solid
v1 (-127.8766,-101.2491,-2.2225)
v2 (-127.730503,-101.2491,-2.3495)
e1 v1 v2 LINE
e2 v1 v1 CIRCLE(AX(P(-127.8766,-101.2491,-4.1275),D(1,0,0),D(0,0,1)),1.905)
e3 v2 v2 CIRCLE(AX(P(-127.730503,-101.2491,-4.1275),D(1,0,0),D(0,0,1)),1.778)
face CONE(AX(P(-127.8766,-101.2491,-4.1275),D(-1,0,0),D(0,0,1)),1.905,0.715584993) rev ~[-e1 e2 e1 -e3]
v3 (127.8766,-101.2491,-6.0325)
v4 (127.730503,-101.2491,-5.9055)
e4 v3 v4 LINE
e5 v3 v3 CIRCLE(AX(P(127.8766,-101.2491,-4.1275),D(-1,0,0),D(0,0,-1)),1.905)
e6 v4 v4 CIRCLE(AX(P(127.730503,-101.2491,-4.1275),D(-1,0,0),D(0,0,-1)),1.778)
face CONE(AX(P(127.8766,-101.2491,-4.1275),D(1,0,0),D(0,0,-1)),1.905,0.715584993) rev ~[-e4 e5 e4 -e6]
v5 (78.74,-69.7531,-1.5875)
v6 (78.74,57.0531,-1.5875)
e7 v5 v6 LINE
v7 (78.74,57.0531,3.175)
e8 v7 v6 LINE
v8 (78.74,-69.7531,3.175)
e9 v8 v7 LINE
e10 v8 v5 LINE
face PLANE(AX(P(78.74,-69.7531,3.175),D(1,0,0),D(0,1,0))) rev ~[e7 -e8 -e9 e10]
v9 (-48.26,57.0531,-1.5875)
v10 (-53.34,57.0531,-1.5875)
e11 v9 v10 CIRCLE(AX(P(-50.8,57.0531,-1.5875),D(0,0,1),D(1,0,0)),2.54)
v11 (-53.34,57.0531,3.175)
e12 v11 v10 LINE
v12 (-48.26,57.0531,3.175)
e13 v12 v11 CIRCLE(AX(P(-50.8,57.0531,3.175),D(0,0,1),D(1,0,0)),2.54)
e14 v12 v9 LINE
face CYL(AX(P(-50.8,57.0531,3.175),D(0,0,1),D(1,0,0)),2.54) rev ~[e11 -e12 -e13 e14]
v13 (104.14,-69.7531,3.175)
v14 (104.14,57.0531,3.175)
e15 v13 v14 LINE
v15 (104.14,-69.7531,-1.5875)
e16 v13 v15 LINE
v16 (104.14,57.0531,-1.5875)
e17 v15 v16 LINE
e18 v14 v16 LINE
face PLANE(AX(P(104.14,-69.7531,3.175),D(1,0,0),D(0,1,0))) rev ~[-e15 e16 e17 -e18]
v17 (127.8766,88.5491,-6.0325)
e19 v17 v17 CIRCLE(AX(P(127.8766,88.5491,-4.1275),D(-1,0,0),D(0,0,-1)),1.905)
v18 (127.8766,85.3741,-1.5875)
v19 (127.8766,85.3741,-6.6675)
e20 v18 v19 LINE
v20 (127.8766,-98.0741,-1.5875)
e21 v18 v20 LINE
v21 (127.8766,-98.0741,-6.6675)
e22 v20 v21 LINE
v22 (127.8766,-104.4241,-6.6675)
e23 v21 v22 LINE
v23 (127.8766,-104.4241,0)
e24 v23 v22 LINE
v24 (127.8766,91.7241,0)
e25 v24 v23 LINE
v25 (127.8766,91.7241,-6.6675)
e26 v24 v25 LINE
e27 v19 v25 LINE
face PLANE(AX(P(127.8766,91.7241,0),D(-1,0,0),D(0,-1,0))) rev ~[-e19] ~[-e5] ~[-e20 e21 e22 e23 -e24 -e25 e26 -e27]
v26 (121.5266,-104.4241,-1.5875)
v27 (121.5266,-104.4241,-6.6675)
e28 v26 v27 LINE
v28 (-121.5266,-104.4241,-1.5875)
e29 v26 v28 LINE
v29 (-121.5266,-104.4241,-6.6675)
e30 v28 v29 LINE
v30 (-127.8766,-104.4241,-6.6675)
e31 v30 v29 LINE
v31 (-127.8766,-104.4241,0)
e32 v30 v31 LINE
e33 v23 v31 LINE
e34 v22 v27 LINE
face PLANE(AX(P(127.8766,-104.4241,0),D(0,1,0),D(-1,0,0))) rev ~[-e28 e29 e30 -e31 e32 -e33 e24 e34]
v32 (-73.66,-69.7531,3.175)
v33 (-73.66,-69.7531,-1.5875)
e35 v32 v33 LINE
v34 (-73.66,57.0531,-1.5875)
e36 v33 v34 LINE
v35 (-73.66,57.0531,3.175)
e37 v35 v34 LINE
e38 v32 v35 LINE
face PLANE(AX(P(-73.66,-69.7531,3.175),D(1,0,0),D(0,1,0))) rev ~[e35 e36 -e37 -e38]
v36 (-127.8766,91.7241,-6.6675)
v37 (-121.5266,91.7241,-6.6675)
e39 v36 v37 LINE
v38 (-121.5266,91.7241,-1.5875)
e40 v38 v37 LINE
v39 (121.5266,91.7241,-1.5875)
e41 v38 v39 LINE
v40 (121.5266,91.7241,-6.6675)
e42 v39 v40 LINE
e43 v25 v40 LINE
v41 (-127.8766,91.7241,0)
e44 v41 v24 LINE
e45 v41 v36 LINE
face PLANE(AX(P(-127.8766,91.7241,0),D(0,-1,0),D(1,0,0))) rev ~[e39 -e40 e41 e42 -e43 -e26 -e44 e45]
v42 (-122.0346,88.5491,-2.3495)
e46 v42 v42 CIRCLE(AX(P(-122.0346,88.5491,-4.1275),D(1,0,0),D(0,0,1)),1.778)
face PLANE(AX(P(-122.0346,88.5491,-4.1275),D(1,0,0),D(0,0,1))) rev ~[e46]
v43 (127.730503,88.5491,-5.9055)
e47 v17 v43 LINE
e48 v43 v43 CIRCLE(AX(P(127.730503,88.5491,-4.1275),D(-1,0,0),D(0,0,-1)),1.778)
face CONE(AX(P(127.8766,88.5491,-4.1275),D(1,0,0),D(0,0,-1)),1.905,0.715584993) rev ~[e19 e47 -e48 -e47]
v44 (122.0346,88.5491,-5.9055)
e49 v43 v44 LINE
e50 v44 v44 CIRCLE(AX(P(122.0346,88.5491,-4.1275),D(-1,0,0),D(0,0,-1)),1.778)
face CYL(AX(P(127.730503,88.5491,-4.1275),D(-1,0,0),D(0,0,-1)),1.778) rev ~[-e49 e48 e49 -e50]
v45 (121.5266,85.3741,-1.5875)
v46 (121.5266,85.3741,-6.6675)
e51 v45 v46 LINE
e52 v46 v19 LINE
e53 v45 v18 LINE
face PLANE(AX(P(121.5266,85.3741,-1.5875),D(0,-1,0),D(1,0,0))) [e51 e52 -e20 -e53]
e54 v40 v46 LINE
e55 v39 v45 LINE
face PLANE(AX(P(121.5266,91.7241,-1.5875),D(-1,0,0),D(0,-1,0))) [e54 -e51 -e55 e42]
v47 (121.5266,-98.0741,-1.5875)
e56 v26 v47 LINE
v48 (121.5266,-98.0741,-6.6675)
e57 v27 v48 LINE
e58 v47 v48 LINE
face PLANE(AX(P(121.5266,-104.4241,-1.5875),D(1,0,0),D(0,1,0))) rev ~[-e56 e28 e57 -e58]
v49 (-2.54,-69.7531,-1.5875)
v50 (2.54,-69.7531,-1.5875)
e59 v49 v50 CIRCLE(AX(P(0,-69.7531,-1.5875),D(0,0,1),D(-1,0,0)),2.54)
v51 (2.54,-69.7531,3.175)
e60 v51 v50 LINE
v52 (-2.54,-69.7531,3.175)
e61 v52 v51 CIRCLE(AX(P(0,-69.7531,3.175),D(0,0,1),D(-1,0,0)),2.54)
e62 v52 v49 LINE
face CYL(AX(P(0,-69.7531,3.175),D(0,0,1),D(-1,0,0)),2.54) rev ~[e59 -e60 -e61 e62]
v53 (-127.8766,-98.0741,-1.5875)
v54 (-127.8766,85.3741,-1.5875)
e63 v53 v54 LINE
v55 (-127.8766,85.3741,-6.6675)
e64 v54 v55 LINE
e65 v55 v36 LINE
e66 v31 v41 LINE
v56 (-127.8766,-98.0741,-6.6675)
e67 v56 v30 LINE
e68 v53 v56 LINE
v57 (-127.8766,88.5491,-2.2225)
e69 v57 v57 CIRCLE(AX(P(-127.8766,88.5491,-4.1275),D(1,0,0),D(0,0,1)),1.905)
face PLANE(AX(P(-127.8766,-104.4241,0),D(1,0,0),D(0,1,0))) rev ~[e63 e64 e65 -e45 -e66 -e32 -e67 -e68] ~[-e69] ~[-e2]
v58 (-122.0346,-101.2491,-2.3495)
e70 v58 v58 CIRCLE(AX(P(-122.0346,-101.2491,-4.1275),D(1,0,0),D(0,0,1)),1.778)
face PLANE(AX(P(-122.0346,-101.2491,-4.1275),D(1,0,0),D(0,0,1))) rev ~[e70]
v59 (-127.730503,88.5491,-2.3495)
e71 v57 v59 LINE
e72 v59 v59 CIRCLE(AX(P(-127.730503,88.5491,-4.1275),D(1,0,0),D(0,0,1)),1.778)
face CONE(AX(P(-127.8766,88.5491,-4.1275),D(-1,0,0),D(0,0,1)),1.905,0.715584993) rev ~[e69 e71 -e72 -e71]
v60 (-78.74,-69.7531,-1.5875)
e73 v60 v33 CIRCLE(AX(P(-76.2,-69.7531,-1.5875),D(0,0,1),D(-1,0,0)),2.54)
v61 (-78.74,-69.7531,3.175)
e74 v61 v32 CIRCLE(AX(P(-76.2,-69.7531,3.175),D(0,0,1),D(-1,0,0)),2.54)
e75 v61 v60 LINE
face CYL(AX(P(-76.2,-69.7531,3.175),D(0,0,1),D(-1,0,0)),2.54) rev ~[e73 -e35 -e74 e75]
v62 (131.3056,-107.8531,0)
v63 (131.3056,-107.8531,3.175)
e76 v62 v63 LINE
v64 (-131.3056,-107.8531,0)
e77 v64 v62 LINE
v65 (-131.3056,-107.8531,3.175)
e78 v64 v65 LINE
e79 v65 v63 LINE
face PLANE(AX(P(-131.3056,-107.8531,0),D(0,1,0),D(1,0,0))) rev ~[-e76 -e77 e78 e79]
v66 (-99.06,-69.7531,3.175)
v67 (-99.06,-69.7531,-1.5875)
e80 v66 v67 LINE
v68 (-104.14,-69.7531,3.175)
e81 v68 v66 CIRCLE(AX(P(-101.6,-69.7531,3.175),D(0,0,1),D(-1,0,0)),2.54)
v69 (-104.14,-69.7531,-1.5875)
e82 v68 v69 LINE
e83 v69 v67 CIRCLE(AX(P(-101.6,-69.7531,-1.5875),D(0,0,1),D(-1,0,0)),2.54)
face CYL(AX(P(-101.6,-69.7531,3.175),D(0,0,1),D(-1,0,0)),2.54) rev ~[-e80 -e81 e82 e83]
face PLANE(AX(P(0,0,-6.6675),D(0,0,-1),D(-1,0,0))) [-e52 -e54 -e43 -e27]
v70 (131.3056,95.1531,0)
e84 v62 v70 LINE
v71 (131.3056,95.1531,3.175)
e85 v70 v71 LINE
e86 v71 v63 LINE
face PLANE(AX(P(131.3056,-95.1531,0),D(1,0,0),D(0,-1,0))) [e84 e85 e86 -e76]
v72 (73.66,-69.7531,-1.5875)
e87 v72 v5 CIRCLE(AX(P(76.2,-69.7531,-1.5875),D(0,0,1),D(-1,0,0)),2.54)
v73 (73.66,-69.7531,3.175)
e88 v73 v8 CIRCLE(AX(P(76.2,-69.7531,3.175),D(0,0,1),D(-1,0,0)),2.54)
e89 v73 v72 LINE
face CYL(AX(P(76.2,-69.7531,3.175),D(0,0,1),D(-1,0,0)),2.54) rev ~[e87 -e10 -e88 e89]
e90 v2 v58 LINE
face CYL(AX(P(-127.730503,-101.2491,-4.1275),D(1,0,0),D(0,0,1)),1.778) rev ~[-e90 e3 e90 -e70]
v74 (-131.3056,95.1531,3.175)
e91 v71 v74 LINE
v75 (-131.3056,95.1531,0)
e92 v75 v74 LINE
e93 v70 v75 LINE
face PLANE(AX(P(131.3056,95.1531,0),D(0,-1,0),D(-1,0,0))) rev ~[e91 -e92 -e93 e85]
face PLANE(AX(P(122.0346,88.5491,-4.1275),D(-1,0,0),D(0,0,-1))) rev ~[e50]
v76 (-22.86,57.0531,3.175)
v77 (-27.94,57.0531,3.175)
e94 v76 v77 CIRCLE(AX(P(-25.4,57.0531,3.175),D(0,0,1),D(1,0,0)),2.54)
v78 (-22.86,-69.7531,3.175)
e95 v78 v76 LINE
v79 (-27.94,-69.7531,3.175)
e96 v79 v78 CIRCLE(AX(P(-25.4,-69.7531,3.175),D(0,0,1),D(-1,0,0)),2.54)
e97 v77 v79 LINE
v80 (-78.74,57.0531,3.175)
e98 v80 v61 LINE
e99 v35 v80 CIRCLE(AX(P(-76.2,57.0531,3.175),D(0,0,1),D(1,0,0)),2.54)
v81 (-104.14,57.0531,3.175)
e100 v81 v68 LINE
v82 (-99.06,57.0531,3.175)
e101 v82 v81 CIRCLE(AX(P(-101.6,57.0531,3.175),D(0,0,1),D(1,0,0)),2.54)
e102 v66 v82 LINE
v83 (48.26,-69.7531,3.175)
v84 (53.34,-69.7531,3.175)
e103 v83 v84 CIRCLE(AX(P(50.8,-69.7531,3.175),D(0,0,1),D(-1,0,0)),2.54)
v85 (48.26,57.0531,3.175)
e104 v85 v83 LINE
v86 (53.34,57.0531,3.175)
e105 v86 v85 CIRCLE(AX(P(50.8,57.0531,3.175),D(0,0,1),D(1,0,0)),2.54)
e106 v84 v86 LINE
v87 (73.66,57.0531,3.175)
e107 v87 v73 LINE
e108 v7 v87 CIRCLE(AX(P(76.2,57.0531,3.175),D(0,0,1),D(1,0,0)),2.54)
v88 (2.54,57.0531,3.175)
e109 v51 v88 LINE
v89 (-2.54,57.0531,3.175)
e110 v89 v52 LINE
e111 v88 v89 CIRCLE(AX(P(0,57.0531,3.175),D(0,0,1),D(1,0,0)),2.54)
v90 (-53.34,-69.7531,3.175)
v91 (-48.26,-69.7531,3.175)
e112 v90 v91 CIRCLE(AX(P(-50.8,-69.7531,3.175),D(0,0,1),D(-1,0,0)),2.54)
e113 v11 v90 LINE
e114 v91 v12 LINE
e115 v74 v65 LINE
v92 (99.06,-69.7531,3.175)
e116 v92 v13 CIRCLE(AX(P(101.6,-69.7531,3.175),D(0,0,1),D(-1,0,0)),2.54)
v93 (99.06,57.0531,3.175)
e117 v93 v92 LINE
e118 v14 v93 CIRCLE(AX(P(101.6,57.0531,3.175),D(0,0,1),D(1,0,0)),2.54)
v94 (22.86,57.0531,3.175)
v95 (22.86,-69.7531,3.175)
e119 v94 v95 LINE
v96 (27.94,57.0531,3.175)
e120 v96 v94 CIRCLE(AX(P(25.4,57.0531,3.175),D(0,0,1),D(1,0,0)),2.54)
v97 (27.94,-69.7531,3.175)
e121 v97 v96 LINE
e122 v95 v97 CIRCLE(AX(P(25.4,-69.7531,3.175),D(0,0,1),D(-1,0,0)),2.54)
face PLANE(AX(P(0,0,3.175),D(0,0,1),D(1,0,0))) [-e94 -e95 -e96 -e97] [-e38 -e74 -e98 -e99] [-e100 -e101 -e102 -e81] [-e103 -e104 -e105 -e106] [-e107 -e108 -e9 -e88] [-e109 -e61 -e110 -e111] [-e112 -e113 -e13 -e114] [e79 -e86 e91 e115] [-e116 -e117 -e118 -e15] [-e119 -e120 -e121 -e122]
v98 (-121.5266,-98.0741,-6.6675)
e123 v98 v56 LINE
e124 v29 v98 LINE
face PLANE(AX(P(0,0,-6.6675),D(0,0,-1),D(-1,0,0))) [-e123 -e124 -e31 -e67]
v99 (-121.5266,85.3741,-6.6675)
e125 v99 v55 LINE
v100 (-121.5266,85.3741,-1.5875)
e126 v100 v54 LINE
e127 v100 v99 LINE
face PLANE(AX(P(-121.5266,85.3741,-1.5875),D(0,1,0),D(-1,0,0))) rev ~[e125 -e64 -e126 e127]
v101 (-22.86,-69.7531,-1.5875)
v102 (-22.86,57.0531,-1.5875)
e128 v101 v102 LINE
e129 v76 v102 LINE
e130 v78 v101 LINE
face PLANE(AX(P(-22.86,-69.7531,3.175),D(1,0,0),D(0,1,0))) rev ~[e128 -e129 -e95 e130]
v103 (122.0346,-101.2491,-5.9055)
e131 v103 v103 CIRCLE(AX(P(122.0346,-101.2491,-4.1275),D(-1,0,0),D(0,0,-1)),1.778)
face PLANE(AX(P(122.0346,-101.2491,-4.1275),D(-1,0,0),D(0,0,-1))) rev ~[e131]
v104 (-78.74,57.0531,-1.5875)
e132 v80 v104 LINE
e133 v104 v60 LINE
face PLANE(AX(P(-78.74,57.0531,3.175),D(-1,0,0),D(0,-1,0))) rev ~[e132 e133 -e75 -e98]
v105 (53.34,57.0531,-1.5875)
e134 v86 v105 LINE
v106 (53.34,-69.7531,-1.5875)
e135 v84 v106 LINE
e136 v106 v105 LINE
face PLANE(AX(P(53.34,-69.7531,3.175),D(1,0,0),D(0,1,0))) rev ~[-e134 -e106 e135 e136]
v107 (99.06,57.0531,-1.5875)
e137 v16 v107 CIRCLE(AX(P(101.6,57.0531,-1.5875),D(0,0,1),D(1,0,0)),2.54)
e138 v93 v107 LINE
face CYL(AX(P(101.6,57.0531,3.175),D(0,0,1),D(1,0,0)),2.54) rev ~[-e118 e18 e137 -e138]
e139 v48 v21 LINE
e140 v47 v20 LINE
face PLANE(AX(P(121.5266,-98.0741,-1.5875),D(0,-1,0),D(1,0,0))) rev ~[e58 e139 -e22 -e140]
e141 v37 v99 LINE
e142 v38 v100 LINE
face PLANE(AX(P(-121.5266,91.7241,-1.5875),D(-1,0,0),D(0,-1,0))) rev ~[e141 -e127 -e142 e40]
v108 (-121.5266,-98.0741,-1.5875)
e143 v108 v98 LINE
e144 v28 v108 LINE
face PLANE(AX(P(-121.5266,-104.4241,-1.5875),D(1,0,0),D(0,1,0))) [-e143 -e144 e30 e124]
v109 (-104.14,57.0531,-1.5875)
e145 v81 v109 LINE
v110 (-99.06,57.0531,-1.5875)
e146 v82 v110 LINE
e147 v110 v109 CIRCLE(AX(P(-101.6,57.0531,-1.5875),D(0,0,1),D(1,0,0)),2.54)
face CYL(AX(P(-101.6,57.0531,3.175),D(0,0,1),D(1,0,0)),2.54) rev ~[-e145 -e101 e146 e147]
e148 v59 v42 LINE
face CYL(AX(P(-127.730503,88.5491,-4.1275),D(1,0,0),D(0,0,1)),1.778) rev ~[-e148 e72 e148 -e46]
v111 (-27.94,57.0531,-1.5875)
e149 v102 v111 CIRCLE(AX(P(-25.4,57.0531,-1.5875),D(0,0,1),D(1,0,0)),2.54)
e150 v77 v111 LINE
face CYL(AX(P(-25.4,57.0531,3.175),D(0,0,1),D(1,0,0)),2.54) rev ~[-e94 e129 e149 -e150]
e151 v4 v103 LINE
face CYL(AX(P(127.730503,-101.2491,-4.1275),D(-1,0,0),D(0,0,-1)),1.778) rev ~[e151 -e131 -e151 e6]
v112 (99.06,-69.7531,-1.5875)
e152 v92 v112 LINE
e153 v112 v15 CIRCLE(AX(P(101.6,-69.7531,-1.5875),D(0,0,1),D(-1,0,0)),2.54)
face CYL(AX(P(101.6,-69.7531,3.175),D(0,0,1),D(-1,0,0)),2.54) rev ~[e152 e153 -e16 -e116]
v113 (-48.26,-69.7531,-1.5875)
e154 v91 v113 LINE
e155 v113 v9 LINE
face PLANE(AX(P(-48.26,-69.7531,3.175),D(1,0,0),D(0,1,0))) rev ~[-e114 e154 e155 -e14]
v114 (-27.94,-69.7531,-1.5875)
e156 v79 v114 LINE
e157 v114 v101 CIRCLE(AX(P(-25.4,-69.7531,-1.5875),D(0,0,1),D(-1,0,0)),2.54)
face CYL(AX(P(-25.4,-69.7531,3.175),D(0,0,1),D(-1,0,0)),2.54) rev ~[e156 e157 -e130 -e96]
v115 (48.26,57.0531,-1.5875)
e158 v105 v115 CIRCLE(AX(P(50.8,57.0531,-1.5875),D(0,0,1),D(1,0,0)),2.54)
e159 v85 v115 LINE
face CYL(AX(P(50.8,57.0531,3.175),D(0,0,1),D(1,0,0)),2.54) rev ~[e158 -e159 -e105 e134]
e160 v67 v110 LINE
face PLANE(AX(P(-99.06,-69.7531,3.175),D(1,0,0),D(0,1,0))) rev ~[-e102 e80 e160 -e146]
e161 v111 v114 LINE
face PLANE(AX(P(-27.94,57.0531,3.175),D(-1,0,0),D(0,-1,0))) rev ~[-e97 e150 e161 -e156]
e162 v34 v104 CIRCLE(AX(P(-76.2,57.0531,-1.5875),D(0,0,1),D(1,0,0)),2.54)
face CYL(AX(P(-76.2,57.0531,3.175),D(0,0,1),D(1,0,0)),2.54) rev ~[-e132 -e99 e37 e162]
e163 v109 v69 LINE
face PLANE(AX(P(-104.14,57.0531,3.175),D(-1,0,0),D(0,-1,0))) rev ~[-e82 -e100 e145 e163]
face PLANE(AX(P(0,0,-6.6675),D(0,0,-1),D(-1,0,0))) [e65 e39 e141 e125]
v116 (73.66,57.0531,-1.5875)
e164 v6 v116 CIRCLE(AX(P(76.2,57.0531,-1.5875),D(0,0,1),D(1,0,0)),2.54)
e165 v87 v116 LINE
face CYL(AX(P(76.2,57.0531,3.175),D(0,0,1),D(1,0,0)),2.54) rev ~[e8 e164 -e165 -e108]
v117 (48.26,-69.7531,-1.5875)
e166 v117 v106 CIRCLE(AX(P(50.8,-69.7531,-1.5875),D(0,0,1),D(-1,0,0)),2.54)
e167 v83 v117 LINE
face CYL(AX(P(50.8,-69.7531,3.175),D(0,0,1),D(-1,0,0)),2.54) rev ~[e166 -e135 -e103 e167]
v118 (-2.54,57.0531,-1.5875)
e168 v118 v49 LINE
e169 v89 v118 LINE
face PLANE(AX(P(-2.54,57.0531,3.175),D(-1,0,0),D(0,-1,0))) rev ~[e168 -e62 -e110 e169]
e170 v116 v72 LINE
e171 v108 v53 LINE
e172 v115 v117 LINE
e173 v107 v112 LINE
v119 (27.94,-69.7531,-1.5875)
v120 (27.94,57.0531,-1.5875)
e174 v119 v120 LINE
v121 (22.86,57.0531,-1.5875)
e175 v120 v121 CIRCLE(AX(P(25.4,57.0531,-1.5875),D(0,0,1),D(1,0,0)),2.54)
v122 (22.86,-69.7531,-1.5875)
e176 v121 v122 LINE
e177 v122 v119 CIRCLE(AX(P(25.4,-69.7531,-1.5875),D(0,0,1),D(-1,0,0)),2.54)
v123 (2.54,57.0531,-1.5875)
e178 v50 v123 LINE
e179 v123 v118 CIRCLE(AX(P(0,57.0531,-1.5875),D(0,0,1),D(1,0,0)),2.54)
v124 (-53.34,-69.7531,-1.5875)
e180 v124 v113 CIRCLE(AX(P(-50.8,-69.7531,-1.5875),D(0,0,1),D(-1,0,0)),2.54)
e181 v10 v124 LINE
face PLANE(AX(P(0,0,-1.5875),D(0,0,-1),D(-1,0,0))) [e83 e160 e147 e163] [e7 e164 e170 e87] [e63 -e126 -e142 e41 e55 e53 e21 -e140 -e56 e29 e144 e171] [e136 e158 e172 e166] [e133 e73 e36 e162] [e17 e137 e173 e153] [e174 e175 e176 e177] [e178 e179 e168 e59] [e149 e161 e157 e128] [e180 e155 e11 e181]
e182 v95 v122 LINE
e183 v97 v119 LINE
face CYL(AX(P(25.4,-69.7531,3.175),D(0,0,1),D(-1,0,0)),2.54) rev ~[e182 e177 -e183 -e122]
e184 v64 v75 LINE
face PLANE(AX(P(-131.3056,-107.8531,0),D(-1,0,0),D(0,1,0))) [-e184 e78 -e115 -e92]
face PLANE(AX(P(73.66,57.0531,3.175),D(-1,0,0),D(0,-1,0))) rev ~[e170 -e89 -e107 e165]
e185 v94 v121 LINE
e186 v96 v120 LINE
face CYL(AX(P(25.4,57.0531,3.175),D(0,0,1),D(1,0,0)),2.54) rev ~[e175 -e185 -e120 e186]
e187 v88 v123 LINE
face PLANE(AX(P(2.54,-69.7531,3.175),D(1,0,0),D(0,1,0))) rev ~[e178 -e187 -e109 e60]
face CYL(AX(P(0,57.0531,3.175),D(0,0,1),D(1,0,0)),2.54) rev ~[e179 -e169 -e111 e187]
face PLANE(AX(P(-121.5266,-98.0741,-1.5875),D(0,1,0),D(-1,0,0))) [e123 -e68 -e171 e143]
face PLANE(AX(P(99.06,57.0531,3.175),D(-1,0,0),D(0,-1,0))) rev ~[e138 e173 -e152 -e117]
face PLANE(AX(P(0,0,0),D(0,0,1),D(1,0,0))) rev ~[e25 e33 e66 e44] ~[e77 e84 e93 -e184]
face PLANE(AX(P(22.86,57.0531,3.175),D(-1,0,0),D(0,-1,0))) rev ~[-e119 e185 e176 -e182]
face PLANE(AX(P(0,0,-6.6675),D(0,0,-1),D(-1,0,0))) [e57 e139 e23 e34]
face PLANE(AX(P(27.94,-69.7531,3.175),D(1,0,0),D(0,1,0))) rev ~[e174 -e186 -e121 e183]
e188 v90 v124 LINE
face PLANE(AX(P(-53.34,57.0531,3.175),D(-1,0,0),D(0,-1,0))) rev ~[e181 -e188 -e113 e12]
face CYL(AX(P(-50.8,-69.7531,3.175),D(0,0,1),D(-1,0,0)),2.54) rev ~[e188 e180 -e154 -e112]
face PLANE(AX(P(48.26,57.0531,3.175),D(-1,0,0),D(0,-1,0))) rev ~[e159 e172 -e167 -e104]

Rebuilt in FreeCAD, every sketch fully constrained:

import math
import FreeCAD as App
import Part
import Sketcher
from FreeCAD import Vector
Q = App.Units.Quantity


def add_polygon(sketch, points):
    """Adds a closed chain of lines whose ends are joined by coincident constraints."""
    first, n = sketch.GeometryCount, len(points)
    for a, b in zip(points, points[1:] + points[:1]):
        sketch.addGeometry(Part.LineSegment(App.Vector(*a, 0), App.Vector(*b, 0)), False)
    for i in range(n):
        sketch.addConstraint(Sketcher.Constraint("Coincident", first + i, 2, first + (i + 1) % n, 1))

doc = App.newDocument("Part")
body = doc.addObject("PartDesign::Body", "Body")

# Sketch on XY plane
sketch1 = doc.addObject("Sketcher::SketchObject", "Sketch")
body.addObject(sketch1)
sketch1.AttachmentSupport = (doc.XY_Plane, [""])
sketch1.MapMode = "FlatFace"
add_polygon(sketch1, [(131, -108), (131, 95), (-131, 95), (-131, -108)])  # lines 0-3
sketch1.addConstraint(Sketcher.Constraint("Vertical", 0))
sketch1.addConstraint(Sketcher.Constraint("Horizontal", 1))
sketch1.addConstraint(Sketcher.Constraint("Vertical", 2))
sketch1.addConstraint(Sketcher.Constraint("Horizontal", 3))
sketch1.addConstraint(Sketcher.Constraint("DistanceX", 1, 2, 1, 1, 262.6112))
sketch1.addConstraint(Sketcher.Constraint("DistanceY", 0, 1, 0, 2, 203.0062))
sketch1.addConstraint(Sketcher.Constraint("DistanceX", -1, 1, 0, 2, Q("5.1695 in")))
sketch1.addConstraint(Sketcher.Constraint("DistanceY", -1, 1, 0, 2, 95.153))
pad1 = doc.addObject("PartDesign::Pad", "Pad")
body.addObject(pad1)
pad1.Profile = sketch1
pad1.Length = Q("0.125 in")

# Sketch on XY plane
sketch2 = doc.addObject("Sketcher::SketchObject", "Sketch001")
body.addObject(sketch2)
sketch2.AttachmentSupport = (doc.XY_Plane, [""])
sketch2.MapMode = "FlatFace"
add_polygon(sketch2, [(-128, 92), (128, 92), (128, -104), (-128, -104)])  # lines 0-3
sketch2.addConstraint(Sketcher.Constraint("Horizontal", 0))
sketch2.addConstraint(Sketcher.Constraint("Vertical", 1))
sketch2.addConstraint(Sketcher.Constraint("Horizontal", 2))
sketch2.addConstraint(Sketcher.Constraint("Vertical", 3))
sketch2.addConstraint(Sketcher.Constraint("DistanceX", 0, 1, 0, 2, 255.7532))
sketch2.addConstraint(Sketcher.Constraint("DistanceY", 1, 2, 1, 1, 196.1482))
sketch2.addConstraint(Sketcher.Constraint("DistanceX", -1, 1, 0, 2, Q("5.0345 in")))
sketch2.addConstraint(Sketcher.Constraint("DistanceY", -1, 1, 0, 2, 91.724))
pad2 = doc.addObject("PartDesign::Pad", "Pad001")
body.addObject(pad2)
pad2.Profile = sketch2
pad2.Length = Q("0.0625 in")
pad2.Reversed = True

# Sketch on XY plane
sketch3 = doc.addObject("Sketcher::SketchObject", "Sketch002")
body.addObject(sketch3)
sketch3.AttachmentSupport = (doc.XY_Plane, [""])
sketch3.MapMode = "FlatFace"
sketch3.AttachmentOffset = App.Placement(Vector(0, 0, 0.125 * 25.4), App.Rotation())
sketch3.addGeometry(Part.ArcOfCircle(Part.Circle(Vector(0, -69.8, 0), Vector(0, 0, 1), 2.5), math.radians(180), math.radians(360)), False)
sketch3.addGeometry(Part.LineSegment(Vector(2.5, -69.8, 0), Vector(2.5, 57.1, 0)), False)
sketch3.addGeometry(Part.ArcOfCircle(Part.Circle(Vector(0, 57.1, 0), Vector(0, 0, 1), 2.5), math.radians(0), math.radians(180)), False)
sketch3.addGeometry(Part.LineSegment(Vector(-2.5, 57.1, 0), Vector(-2.5, -69.8, 0)), False)
sketch3.addGeometry(Part.LineSegment(Vector(-22.9, -69.8, 0), Vector(-22.9, 57.1, 0)), False)
sketch3.addGeometry(Part.ArcOfCircle(Part.Circle(Vector(-25.4, 57.1, 0), Vector(0, 0, 1), 2.5), math.radians(0), math.radians(180)), False)
sketch3.addGeometry(Part.LineSegment(Vector(-27.9, 57.1, 0), Vector(-27.9, -69.8, 0)), False)
sketch3.addGeometry(Part.ArcOfCircle(Part.Circle(Vector(-25.4, -69.8, 0), Vector(0, 0, 1), 2.5), math.radians(180), math.radians(360)), False)
sketch3.addGeometry(Part.LineSegment(Vector(-48.3, -69.8, 0), Vector(-48.3, 57.1, 0)), False)
sketch3.addGeometry(Part.ArcOfCircle(Part.Circle(Vector(-50.8, 57.1, 0), Vector(0, 0, 1), 2.5), math.radians(0), math.radians(180)), False)
sketch3.addGeometry(Part.LineSegment(Vector(-53.3, 57.1, 0), Vector(-53.3, -69.8, 0)), False)
sketch3.addGeometry(Part.ArcOfCircle(Part.Circle(Vector(-50.8, -69.8, 0), Vector(0, 0, 1), 2.5), math.radians(180), math.radians(360)), False)
sketch3.addGeometry(Part.LineSegment(Vector(-73.7, -69.8, 0), Vector(-73.7, 57.1, 0)), False)
sketch3.addGeometry(Part.ArcOfCircle(Part.Circle(Vector(-76.2, 57.1, 0), Vector(0, 0, 1), 2.5), math.radians(0), math.radians(180)), False)
sketch3.addGeometry(Part.LineSegment(Vector(-78.7, 57.1, 0), Vector(-78.7, -69.8, 0)), False)
sketch3.addGeometry(Part.ArcOfCircle(Part.Circle(Vector(-76.2, -69.8, 0), Vector(0, 0, 1), 2.5), math.radians(180), math.radians(360)), False)
sketch3.addGeometry(Part.LineSegment(Vector(-99.1, -69.8, 0), Vector(-99.1, 57.1, 0)), False)
sketch3.addGeometry(Part.ArcOfCircle(Part.Circle(Vector(-101.6, 57.1, 0), Vector(0, 0, 1), 2.5), math.radians(0), math.radians(180)), False)
sketch3.addGeometry(Part.LineSegment(Vector(-104.1, 57.1, 0), Vector(-104.1, -69.8, 0)), False)
sketch3.addGeometry(Part.ArcOfCircle(Part.Circle(Vector(-101.6, -69.8, 0), Vector(0, 0, 1), 2.5), math.radians(180), math.radians(360)), False)
sketch3.addGeometry(Part.LineSegment(Vector(27.9, -69.8, 0), Vector(27.9, 57.1, 0)), False)
sketch3.addGeometry(Part.ArcOfCircle(Part.Circle(Vector(25.4, 57.1, 0), Vector(0, 0, 1), 2.5), math.radians(0), math.radians(180)), False)
sketch3.addGeometry(Part.LineSegment(Vector(22.9, 57.1, 0), Vector(22.9, -69.8, 0)), False)
sketch3.addGeometry(Part.ArcOfCircle(Part.Circle(Vector(25.4, -69.8, 0), Vector(0, 0, 1), 2.5), math.radians(180), math.radians(360)), False)
sketch3.addGeometry(Part.LineSegment(Vector(53.3, -69.8, 0), Vector(53.3, 57.1, 0)), False)
sketch3.addGeometry(Part.ArcOfCircle(Part.Circle(Vector(50.8, 57.1, 0), Vector(0, 0, 1), 2.5), math.radians(0), math.radians(180)), False)
sketch3.addGeometry(Part.LineSegment(Vector(48.3, 57.1, 0), Vector(48.3, -69.8, 0)), False)
sketch3.addGeometry(Part.ArcOfCircle(Part.Circle(Vector(50.8, -69.8, 0), Vector(0, 0, 1), 2.5), math.radians(180), math.radians(360)), False)
sketch3.addGeometry(Part.LineSegment(Vector(78.7, -69.8, 0), Vector(78.7, 57.1, 0)), False)
sketch3.addGeometry(Part.ArcOfCircle(Part.Circle(Vector(76.2, 57.1, 0), Vector(0, 0, 1), 2.5), math.radians(0), math.radians(180)), False)
sketch3.addGeometry(Part.LineSegment(Vector(73.7, 57.1, 0), Vector(73.7, -69.8, 0)), False)
sketch3.addGeometry(Part.ArcOfCircle(Part.Circle(Vector(76.2, -69.8, 0), Vector(0, 0, 1), 2.5), math.radians(180), math.radians(360)), False)
sketch3.addGeometry(Part.LineSegment(Vector(104.1, -69.8, 0), Vector(104.1, 57.1, 0)), False)
sketch3.addGeometry(Part.ArcOfCircle(Part.Circle(Vector(101.6, 57.1, 0), Vector(0, 0, 1), 2.5), math.radians(0), math.radians(180)), False)
sketch3.addGeometry(Part.LineSegment(Vector(99.1, 57.1, 0), Vector(99.1, -69.8, 0)), False)
sketch3.addGeometry(Part.ArcOfCircle(Part.Circle(Vector(101.6, -69.8, 0), Vector(0, 0, 1), 2.5), math.radians(180), math.radians(360)), False)
sketch3.addConstraint(Sketcher.Constraint("Tangent", 0, 2, 1, 1))
sketch3.addConstraint(Sketcher.Constraint("Tangent", 1, 2, 2, 1))
sketch3.addConstraint(Sketcher.Constraint("Tangent", 2, 2, 3, 1))
sketch3.addConstraint(Sketcher.Constraint("Tangent", 3, 2, 0, 1))
sketch3.addConstraint(Sketcher.Constraint("Tangent", 4, 2, 5, 1))
sketch3.addConstraint(Sketcher.Constraint("Tangent", 5, 2, 6, 1))
sketch3.addConstraint(Sketcher.Constraint("Tangent", 6, 2, 7, 1))
sketch3.addConstraint(Sketcher.Constraint("Tangent", 7, 2, 4, 1))
sketch3.addConstraint(Sketcher.Constraint("Tangent", 8, 2, 9, 1))
sketch3.addConstraint(Sketcher.Constraint("Tangent", 9, 2, 10, 1))
sketch3.addConstraint(Sketcher.Constraint("Tangent", 10, 2, 11, 1))
sketch3.addConstraint(Sketcher.Constraint("Tangent", 11, 2, 8, 1))
sketch3.addConstraint(Sketcher.Constraint("Tangent", 12, 2, 13, 1))
sketch3.addConstraint(Sketcher.Constraint("Tangent", 13, 2, 14, 1))
sketch3.addConstraint(Sketcher.Constraint("Tangent", 14, 2, 15, 1))
sketch3.addConstraint(Sketcher.Constraint("Tangent", 15, 2, 12, 1))
sketch3.addConstraint(Sketcher.Constraint("Tangent", 16, 2, 17, 1))
sketch3.addConstraint(Sketcher.Constraint("Tangent", 17, 2, 18, 1))
sketch3.addConstraint(Sketcher.Constraint("Tangent", 18, 2, 19, 1))
sketch3.addConstraint(Sketcher.Constraint("Tangent", 19, 2, 16, 1))
sketch3.addConstraint(Sketcher.Constraint("Tangent", 20, 2, 21, 1))
sketch3.addConstraint(Sketcher.Constraint("Tangent", 21, 2, 22, 1))
sketch3.addConstraint(Sketcher.Constraint("Tangent", 22, 2, 23, 1))
sketch3.addConstraint(Sketcher.Constraint("Tangent", 23, 2, 20, 1))
sketch3.addConstraint(Sketcher.Constraint("Tangent", 24, 2, 25, 1))
sketch3.addConstraint(Sketcher.Constraint("Tangent", 25, 2, 26, 1))
sketch3.addConstraint(Sketcher.Constraint("Tangent", 26, 2, 27, 1))
sketch3.addConstraint(Sketcher.Constraint("Tangent", 27, 2, 24, 1))
sketch3.addConstraint(Sketcher.Constraint("Tangent", 28, 2, 29, 1))
sketch3.addConstraint(Sketcher.Constraint("Tangent", 29, 2, 30, 1))
sketch3.addConstraint(Sketcher.Constraint("Tangent", 30, 2, 31, 1))
sketch3.addConstraint(Sketcher.Constraint("Tangent", 31, 2, 28, 1))
sketch3.addConstraint(Sketcher.Constraint("Tangent", 32, 2, 33, 1))
sketch3.addConstraint(Sketcher.Constraint("Tangent", 33, 2, 34, 1))
sketch3.addConstraint(Sketcher.Constraint("Tangent", 34, 2, 35, 1))
sketch3.addConstraint(Sketcher.Constraint("Tangent", 35, 2, 32, 1))
sketch3.addConstraint(Sketcher.Constraint("Vertical", 1))
sketch3.addConstraint(Sketcher.Constraint("Vertical", 3))
sketch3.addConstraint(Sketcher.Constraint("Vertical", 4))
sketch3.addConstraint(Sketcher.Constraint("Vertical", 6))
sketch3.addConstraint(Sketcher.Constraint("Vertical", 8))
sketch3.addConstraint(Sketcher.Constraint("Vertical", 10))
sketch3.addConstraint(Sketcher.Constraint("Vertical", 12))
sketch3.addConstraint(Sketcher.Constraint("Vertical", 14))
sketch3.addConstraint(Sketcher.Constraint("Vertical", 16))
sketch3.addConstraint(Sketcher.Constraint("Vertical", 18))
sketch3.addConstraint(Sketcher.Constraint("Vertical", 20))
sketch3.addConstraint(Sketcher.Constraint("Vertical", 22))
sketch3.addConstraint(Sketcher.Constraint("Vertical", 24))
sketch3.addConstraint(Sketcher.Constraint("Vertical", 26))
sketch3.addConstraint(Sketcher.Constraint("Vertical", 28))
sketch3.addConstraint(Sketcher.Constraint("Vertical", 30))
sketch3.addConstraint(Sketcher.Constraint("Vertical", 32))
sketch3.addConstraint(Sketcher.Constraint("Vertical", 34))
sketch3.addConstraint(Sketcher.Constraint("Equal", 2, 5))
sketch3.addConstraint(Sketcher.Constraint("Equal", 7, 9))
sketch3.addConstraint(Sketcher.Constraint("Equal", 11, 13))
sketch3.addConstraint(Sketcher.Constraint("Equal", 15, 17))
sketch3.addConstraint(Sketcher.Constraint("Equal", 19, 21))
sketch3.addConstraint(Sketcher.Constraint("Equal", 23, 25))
sketch3.addConstraint(Sketcher.Constraint("Equal", 27, 29))
sketch3.addConstraint(Sketcher.Constraint("Equal", 31, 33))
sketch3.addConstraint(Sketcher.Constraint("Symmetric", 5, 3, 21, 3, -2))
sketch3.addConstraint(Sketcher.Constraint("Symmetric", 9, 3, 25, 3, -2))
sketch3.addConstraint(Sketcher.Constraint("Symmetric", 13, 3, 29, 3, -2))
sketch3.addConstraint(Sketcher.Constraint("Symmetric", 17, 3, 33, 3, -2))
sketch3.addConstraint(Sketcher.Constraint("PointOnObject", 0, 3, -2))
sketch3.addConstraint(Sketcher.Constraint("Horizontal", 2, 3, 5, 3))
sketch3.addConstraint(Sketcher.Constraint("Horizontal", 0, 3, 7, 3))
sketch3.addConstraint(Sketcher.Constraint("Horizontal", 5, 3, 9, 3))
sketch3.addConstraint(Sketcher.Constraint("Horizontal", 7, 3, 11, 3))
sketch3.addConstraint(Sketcher.Constraint("Horizontal", 9, 3, 13, 3))
sketch3.addConstraint(Sketcher.Constraint("Horizontal", 11, 3, 15, 3))
sketch3.addConstraint(Sketcher.Constraint("Horizontal", 13, 3, 17, 3))
sketch3.addConstraint(Sketcher.Constraint("Horizontal", 15, 3, 19, 3))
sketch3.addConstraint(Sketcher.Constraint("Horizontal", 19, 3, 23, 3))
sketch3.addConstraint(Sketcher.Constraint("Horizontal", 23, 3, 27, 3))
sketch3.addConstraint(Sketcher.Constraint("Horizontal", 27, 3, 31, 3))
sketch3.addConstraint(Sketcher.Constraint("Horizontal", 31, 3, 35, 3))
sketch3.addConstraint(Sketcher.Constraint("Radius", 0, Q("0.1 in")))
sketch3.addConstraint(Sketcher.Constraint("DistanceX", 5, 3, -1, 1, Q("1 in")))
sketch3.addConstraint(Sketcher.Constraint("DistanceX", 9, 3, 5, 3, Q("1 in")))
sketch3.addConstraint(Sketcher.Constraint("DistanceX", 13, 3, 9, 3, Q("1 in")))
sketch3.addConstraint(Sketcher.Constraint("DistanceX", 17, 3, 13, 3, Q("1 in")))
sketch3.addConstraint(Sketcher.Constraint("DistanceY", 1, 1, 1, 2, 126.8062))
sketch3.addConstraint(Sketcher.Constraint("DistanceY", 0, 3, -1, 1, 69.753))
pocket1 = doc.addObject("PartDesign::Pocket", "Pocket")
body.addObject(pocket1)
pocket1.Profile = sketch3
pocket1.Length = Q("0.1875 in")

# Sketch on XY plane
sketch4 = doc.addObject("Sketcher::SketchObject", "Sketch003")
body.addObject(sketch4)
sketch4.AttachmentSupport = (doc.XY_Plane, [""])
sketch4.MapMode = "FlatFace"
sketch4.AttachmentOffset = App.Placement(Vector(0, 0, -0.0625 * 25.4), App.Rotation())
add_polygon(sketch4, [(122, 92), (128, 92), (128, 85), (122, 85)])  # lines 0-3
add_polygon(sketch4, [(-128, 92), (-122, 92), (-122, 85), (-128, 85)])  # lines 4-7
add_polygon(sketch4, [(122, -98), (128, -98), (128, -104), (122, -104)])  # lines 8-11
add_polygon(sketch4, [(-128, -104), (-128, -98), (-122, -98), (-122, -104)])  # lines 12-15
sketch4.addConstraint(Sketcher.Constraint("Horizontal", 0))
sketch4.addConstraint(Sketcher.Constraint("Vertical", 1))
sketch4.addConstraint(Sketcher.Constraint("Horizontal", 2))
sketch4.addConstraint(Sketcher.Constraint("Vertical", 3))
sketch4.addConstraint(Sketcher.Constraint("Horizontal", 4))
sketch4.addConstraint(Sketcher.Constraint("Vertical", 5))
sketch4.addConstraint(Sketcher.Constraint("Horizontal", 6))
sketch4.addConstraint(Sketcher.Constraint("Vertical", 7))
sketch4.addConstraint(Sketcher.Constraint("Horizontal", 8))
sketch4.addConstraint(Sketcher.Constraint("Vertical", 9))
sketch4.addConstraint(Sketcher.Constraint("Horizontal", 10))
sketch4.addConstraint(Sketcher.Constraint("Vertical", 11))
sketch4.addConstraint(Sketcher.Constraint("Vertical", 12))
sketch4.addConstraint(Sketcher.Constraint("Horizontal", 13))
sketch4.addConstraint(Sketcher.Constraint("Vertical", 14))
sketch4.addConstraint(Sketcher.Constraint("Horizontal", 15))
sketch4.addConstraint(Sketcher.Constraint("Symmetric", 3, 2, 4, 2, -2))
sketch4.addConstraint(Sketcher.Constraint("Symmetric", 1, 2, 6, 2, -2))
sketch4.addConstraint(Sketcher.Constraint("Symmetric", 8, 2, 12, 2, -2))
sketch4.addConstraint(Sketcher.Constraint("Symmetric", 10, 2, 14, 2, -2))
sketch4.addConstraint(Sketcher.Constraint("Vertical", 1, 2, 8, 2))
sketch4.addConstraint(Sketcher.Constraint("Vertical", 3, 2, 10, 2))
sketch4.addConstraint(Sketcher.Constraint("Equal", 15, 1))
sketch4.addConstraint(Sketcher.Constraint("Equal", 7, 9))
sketch4.addConstraint(Sketcher.Constraint("DistanceX", 0, 1, 0, 2, Q("0.25 in")))
sketch4.addConstraint(Sketcher.Constraint("DistanceX", -1, 1, 0, 2, Q("5.0345 in")))
sketch4.addConstraint(Sketcher.Constraint("DistanceY", -1, 1, 0, 2, 91.724))
sketch4.addConstraint(Sketcher.Constraint("DistanceY", 8, 2, -1, 1, 98.074))
pad3 = doc.addObject("PartDesign::Pad", "Pad002")
body.addObject(pad3)
pad3.Profile = sketch4
pad3.Length = Q("0.2 in")
pad3.Reversed = True

# Sketch on YZ plane
sketch5 = doc.addObject("Sketcher::SketchObject", "Sketch004")
body.addObject(sketch5)
sketch5.AttachmentSupport = (doc.YZ_Plane, [""])
sketch5.MapMode = "FlatFace"
sketch5.AttachmentOffset = App.Placement(Vector(0, 0, -5.0345118 * 25.4), App.Rotation())
sketch5.addGeometry(Part.Circle(Vector(88.5, -4.1, 0), Vector(0, 0, 1), 1.8), False)
sketch5.addGeometry(Part.Circle(Vector(-101.2, -4.1, 0), Vector(0, 0, 1), 1.8), False)
sketch5.addConstraint(Sketcher.Constraint("Equal", 0, 1))
sketch5.addConstraint(Sketcher.Constraint("Horizontal", 0, 3, 1, 3))
sketch5.addConstraint(Sketcher.Constraint("Diameter", 0, Q("0.14 in")))
sketch5.addConstraint(Sketcher.Constraint("DistanceY", 0, 3, -1, 1, Q("0.1625 in")))
sketch5.addConstraint(Sketcher.Constraint("DistanceX", -1, 1, 0, 3, 88.549))
sketch5.addConstraint(Sketcher.Constraint("DistanceX", 1, 3, -1, 1, 101.249))
doc.recompute()
hole = doc.addObject("PartDesign::Hole", "Hole")
body.addObject(hole)
hole.Profile = sketch5
hole.ThreadType = "None"
hole.Diameter = Q("0.14 in")
hole.DepthType = "Dimension"
hole.Depth = Q("0.23 in")
hole.DrillPoint = "Flat"
hole.HoleCutType = "Countersink"
hole.HoleCutDiameter = Q("0.15 in")
hole.HoleCutCountersinkAngle = 82
hole.Reversed = True

# Sketch on YZ plane
sketch6 = doc.addObject("Sketcher::SketchObject", "Sketch005")
body.addObject(sketch6)
sketch6.AttachmentSupport = (doc.YZ_Plane, [""])
sketch6.MapMode = "FlatFace"
sketch6.AttachmentOffset = App.Placement(Vector(0, 0, 5.0345118 * 25.4), App.Rotation())
sketch6.addGeometry(Part.Circle(Vector(-101.2, -4.1, 0), Vector(0, 0, 1), 1.8), False)
sketch6.addGeometry(Part.Circle(Vector(88.5, -4.1, 0), Vector(0, 0, 1), 1.8), False)
sketch6.addConstraint(Sketcher.Constraint("Equal", 0, 1))
sketch6.addConstraint(Sketcher.Constraint("Horizontal", 0, 3, 1, 3))
sketch6.addConstraint(Sketcher.Constraint("Diameter", 0, Q("0.14 in")))
sketch6.addConstraint(Sketcher.Constraint("DistanceY", 0, 3, -1, 1, Q("0.1625 in")))
sketch6.addConstraint(Sketcher.Constraint("DistanceX", 0, 3, -1, 1, 101.249))
sketch6.addConstraint(Sketcher.Constraint("DistanceX", -1, 1, 1, 3, 88.549))
doc.recompute()
hole2 = doc.addObject("PartDesign::Hole", "Hole001")
body.addObject(hole2)
hole2.Profile = sketch6
hole2.ThreadType = "None"
hole2.Diameter = Q("0.14 in")
hole2.DepthType = "Dimension"
hole2.Depth = Q("0.23 in")
hole2.DrillPoint = "Flat"
hole2.HoleCutType = "Countersink"
hole2.HoleCutDiameter = Q("0.15 in")
hole2.HoleCutCountersinkAngle = 82

doc.recompute()
